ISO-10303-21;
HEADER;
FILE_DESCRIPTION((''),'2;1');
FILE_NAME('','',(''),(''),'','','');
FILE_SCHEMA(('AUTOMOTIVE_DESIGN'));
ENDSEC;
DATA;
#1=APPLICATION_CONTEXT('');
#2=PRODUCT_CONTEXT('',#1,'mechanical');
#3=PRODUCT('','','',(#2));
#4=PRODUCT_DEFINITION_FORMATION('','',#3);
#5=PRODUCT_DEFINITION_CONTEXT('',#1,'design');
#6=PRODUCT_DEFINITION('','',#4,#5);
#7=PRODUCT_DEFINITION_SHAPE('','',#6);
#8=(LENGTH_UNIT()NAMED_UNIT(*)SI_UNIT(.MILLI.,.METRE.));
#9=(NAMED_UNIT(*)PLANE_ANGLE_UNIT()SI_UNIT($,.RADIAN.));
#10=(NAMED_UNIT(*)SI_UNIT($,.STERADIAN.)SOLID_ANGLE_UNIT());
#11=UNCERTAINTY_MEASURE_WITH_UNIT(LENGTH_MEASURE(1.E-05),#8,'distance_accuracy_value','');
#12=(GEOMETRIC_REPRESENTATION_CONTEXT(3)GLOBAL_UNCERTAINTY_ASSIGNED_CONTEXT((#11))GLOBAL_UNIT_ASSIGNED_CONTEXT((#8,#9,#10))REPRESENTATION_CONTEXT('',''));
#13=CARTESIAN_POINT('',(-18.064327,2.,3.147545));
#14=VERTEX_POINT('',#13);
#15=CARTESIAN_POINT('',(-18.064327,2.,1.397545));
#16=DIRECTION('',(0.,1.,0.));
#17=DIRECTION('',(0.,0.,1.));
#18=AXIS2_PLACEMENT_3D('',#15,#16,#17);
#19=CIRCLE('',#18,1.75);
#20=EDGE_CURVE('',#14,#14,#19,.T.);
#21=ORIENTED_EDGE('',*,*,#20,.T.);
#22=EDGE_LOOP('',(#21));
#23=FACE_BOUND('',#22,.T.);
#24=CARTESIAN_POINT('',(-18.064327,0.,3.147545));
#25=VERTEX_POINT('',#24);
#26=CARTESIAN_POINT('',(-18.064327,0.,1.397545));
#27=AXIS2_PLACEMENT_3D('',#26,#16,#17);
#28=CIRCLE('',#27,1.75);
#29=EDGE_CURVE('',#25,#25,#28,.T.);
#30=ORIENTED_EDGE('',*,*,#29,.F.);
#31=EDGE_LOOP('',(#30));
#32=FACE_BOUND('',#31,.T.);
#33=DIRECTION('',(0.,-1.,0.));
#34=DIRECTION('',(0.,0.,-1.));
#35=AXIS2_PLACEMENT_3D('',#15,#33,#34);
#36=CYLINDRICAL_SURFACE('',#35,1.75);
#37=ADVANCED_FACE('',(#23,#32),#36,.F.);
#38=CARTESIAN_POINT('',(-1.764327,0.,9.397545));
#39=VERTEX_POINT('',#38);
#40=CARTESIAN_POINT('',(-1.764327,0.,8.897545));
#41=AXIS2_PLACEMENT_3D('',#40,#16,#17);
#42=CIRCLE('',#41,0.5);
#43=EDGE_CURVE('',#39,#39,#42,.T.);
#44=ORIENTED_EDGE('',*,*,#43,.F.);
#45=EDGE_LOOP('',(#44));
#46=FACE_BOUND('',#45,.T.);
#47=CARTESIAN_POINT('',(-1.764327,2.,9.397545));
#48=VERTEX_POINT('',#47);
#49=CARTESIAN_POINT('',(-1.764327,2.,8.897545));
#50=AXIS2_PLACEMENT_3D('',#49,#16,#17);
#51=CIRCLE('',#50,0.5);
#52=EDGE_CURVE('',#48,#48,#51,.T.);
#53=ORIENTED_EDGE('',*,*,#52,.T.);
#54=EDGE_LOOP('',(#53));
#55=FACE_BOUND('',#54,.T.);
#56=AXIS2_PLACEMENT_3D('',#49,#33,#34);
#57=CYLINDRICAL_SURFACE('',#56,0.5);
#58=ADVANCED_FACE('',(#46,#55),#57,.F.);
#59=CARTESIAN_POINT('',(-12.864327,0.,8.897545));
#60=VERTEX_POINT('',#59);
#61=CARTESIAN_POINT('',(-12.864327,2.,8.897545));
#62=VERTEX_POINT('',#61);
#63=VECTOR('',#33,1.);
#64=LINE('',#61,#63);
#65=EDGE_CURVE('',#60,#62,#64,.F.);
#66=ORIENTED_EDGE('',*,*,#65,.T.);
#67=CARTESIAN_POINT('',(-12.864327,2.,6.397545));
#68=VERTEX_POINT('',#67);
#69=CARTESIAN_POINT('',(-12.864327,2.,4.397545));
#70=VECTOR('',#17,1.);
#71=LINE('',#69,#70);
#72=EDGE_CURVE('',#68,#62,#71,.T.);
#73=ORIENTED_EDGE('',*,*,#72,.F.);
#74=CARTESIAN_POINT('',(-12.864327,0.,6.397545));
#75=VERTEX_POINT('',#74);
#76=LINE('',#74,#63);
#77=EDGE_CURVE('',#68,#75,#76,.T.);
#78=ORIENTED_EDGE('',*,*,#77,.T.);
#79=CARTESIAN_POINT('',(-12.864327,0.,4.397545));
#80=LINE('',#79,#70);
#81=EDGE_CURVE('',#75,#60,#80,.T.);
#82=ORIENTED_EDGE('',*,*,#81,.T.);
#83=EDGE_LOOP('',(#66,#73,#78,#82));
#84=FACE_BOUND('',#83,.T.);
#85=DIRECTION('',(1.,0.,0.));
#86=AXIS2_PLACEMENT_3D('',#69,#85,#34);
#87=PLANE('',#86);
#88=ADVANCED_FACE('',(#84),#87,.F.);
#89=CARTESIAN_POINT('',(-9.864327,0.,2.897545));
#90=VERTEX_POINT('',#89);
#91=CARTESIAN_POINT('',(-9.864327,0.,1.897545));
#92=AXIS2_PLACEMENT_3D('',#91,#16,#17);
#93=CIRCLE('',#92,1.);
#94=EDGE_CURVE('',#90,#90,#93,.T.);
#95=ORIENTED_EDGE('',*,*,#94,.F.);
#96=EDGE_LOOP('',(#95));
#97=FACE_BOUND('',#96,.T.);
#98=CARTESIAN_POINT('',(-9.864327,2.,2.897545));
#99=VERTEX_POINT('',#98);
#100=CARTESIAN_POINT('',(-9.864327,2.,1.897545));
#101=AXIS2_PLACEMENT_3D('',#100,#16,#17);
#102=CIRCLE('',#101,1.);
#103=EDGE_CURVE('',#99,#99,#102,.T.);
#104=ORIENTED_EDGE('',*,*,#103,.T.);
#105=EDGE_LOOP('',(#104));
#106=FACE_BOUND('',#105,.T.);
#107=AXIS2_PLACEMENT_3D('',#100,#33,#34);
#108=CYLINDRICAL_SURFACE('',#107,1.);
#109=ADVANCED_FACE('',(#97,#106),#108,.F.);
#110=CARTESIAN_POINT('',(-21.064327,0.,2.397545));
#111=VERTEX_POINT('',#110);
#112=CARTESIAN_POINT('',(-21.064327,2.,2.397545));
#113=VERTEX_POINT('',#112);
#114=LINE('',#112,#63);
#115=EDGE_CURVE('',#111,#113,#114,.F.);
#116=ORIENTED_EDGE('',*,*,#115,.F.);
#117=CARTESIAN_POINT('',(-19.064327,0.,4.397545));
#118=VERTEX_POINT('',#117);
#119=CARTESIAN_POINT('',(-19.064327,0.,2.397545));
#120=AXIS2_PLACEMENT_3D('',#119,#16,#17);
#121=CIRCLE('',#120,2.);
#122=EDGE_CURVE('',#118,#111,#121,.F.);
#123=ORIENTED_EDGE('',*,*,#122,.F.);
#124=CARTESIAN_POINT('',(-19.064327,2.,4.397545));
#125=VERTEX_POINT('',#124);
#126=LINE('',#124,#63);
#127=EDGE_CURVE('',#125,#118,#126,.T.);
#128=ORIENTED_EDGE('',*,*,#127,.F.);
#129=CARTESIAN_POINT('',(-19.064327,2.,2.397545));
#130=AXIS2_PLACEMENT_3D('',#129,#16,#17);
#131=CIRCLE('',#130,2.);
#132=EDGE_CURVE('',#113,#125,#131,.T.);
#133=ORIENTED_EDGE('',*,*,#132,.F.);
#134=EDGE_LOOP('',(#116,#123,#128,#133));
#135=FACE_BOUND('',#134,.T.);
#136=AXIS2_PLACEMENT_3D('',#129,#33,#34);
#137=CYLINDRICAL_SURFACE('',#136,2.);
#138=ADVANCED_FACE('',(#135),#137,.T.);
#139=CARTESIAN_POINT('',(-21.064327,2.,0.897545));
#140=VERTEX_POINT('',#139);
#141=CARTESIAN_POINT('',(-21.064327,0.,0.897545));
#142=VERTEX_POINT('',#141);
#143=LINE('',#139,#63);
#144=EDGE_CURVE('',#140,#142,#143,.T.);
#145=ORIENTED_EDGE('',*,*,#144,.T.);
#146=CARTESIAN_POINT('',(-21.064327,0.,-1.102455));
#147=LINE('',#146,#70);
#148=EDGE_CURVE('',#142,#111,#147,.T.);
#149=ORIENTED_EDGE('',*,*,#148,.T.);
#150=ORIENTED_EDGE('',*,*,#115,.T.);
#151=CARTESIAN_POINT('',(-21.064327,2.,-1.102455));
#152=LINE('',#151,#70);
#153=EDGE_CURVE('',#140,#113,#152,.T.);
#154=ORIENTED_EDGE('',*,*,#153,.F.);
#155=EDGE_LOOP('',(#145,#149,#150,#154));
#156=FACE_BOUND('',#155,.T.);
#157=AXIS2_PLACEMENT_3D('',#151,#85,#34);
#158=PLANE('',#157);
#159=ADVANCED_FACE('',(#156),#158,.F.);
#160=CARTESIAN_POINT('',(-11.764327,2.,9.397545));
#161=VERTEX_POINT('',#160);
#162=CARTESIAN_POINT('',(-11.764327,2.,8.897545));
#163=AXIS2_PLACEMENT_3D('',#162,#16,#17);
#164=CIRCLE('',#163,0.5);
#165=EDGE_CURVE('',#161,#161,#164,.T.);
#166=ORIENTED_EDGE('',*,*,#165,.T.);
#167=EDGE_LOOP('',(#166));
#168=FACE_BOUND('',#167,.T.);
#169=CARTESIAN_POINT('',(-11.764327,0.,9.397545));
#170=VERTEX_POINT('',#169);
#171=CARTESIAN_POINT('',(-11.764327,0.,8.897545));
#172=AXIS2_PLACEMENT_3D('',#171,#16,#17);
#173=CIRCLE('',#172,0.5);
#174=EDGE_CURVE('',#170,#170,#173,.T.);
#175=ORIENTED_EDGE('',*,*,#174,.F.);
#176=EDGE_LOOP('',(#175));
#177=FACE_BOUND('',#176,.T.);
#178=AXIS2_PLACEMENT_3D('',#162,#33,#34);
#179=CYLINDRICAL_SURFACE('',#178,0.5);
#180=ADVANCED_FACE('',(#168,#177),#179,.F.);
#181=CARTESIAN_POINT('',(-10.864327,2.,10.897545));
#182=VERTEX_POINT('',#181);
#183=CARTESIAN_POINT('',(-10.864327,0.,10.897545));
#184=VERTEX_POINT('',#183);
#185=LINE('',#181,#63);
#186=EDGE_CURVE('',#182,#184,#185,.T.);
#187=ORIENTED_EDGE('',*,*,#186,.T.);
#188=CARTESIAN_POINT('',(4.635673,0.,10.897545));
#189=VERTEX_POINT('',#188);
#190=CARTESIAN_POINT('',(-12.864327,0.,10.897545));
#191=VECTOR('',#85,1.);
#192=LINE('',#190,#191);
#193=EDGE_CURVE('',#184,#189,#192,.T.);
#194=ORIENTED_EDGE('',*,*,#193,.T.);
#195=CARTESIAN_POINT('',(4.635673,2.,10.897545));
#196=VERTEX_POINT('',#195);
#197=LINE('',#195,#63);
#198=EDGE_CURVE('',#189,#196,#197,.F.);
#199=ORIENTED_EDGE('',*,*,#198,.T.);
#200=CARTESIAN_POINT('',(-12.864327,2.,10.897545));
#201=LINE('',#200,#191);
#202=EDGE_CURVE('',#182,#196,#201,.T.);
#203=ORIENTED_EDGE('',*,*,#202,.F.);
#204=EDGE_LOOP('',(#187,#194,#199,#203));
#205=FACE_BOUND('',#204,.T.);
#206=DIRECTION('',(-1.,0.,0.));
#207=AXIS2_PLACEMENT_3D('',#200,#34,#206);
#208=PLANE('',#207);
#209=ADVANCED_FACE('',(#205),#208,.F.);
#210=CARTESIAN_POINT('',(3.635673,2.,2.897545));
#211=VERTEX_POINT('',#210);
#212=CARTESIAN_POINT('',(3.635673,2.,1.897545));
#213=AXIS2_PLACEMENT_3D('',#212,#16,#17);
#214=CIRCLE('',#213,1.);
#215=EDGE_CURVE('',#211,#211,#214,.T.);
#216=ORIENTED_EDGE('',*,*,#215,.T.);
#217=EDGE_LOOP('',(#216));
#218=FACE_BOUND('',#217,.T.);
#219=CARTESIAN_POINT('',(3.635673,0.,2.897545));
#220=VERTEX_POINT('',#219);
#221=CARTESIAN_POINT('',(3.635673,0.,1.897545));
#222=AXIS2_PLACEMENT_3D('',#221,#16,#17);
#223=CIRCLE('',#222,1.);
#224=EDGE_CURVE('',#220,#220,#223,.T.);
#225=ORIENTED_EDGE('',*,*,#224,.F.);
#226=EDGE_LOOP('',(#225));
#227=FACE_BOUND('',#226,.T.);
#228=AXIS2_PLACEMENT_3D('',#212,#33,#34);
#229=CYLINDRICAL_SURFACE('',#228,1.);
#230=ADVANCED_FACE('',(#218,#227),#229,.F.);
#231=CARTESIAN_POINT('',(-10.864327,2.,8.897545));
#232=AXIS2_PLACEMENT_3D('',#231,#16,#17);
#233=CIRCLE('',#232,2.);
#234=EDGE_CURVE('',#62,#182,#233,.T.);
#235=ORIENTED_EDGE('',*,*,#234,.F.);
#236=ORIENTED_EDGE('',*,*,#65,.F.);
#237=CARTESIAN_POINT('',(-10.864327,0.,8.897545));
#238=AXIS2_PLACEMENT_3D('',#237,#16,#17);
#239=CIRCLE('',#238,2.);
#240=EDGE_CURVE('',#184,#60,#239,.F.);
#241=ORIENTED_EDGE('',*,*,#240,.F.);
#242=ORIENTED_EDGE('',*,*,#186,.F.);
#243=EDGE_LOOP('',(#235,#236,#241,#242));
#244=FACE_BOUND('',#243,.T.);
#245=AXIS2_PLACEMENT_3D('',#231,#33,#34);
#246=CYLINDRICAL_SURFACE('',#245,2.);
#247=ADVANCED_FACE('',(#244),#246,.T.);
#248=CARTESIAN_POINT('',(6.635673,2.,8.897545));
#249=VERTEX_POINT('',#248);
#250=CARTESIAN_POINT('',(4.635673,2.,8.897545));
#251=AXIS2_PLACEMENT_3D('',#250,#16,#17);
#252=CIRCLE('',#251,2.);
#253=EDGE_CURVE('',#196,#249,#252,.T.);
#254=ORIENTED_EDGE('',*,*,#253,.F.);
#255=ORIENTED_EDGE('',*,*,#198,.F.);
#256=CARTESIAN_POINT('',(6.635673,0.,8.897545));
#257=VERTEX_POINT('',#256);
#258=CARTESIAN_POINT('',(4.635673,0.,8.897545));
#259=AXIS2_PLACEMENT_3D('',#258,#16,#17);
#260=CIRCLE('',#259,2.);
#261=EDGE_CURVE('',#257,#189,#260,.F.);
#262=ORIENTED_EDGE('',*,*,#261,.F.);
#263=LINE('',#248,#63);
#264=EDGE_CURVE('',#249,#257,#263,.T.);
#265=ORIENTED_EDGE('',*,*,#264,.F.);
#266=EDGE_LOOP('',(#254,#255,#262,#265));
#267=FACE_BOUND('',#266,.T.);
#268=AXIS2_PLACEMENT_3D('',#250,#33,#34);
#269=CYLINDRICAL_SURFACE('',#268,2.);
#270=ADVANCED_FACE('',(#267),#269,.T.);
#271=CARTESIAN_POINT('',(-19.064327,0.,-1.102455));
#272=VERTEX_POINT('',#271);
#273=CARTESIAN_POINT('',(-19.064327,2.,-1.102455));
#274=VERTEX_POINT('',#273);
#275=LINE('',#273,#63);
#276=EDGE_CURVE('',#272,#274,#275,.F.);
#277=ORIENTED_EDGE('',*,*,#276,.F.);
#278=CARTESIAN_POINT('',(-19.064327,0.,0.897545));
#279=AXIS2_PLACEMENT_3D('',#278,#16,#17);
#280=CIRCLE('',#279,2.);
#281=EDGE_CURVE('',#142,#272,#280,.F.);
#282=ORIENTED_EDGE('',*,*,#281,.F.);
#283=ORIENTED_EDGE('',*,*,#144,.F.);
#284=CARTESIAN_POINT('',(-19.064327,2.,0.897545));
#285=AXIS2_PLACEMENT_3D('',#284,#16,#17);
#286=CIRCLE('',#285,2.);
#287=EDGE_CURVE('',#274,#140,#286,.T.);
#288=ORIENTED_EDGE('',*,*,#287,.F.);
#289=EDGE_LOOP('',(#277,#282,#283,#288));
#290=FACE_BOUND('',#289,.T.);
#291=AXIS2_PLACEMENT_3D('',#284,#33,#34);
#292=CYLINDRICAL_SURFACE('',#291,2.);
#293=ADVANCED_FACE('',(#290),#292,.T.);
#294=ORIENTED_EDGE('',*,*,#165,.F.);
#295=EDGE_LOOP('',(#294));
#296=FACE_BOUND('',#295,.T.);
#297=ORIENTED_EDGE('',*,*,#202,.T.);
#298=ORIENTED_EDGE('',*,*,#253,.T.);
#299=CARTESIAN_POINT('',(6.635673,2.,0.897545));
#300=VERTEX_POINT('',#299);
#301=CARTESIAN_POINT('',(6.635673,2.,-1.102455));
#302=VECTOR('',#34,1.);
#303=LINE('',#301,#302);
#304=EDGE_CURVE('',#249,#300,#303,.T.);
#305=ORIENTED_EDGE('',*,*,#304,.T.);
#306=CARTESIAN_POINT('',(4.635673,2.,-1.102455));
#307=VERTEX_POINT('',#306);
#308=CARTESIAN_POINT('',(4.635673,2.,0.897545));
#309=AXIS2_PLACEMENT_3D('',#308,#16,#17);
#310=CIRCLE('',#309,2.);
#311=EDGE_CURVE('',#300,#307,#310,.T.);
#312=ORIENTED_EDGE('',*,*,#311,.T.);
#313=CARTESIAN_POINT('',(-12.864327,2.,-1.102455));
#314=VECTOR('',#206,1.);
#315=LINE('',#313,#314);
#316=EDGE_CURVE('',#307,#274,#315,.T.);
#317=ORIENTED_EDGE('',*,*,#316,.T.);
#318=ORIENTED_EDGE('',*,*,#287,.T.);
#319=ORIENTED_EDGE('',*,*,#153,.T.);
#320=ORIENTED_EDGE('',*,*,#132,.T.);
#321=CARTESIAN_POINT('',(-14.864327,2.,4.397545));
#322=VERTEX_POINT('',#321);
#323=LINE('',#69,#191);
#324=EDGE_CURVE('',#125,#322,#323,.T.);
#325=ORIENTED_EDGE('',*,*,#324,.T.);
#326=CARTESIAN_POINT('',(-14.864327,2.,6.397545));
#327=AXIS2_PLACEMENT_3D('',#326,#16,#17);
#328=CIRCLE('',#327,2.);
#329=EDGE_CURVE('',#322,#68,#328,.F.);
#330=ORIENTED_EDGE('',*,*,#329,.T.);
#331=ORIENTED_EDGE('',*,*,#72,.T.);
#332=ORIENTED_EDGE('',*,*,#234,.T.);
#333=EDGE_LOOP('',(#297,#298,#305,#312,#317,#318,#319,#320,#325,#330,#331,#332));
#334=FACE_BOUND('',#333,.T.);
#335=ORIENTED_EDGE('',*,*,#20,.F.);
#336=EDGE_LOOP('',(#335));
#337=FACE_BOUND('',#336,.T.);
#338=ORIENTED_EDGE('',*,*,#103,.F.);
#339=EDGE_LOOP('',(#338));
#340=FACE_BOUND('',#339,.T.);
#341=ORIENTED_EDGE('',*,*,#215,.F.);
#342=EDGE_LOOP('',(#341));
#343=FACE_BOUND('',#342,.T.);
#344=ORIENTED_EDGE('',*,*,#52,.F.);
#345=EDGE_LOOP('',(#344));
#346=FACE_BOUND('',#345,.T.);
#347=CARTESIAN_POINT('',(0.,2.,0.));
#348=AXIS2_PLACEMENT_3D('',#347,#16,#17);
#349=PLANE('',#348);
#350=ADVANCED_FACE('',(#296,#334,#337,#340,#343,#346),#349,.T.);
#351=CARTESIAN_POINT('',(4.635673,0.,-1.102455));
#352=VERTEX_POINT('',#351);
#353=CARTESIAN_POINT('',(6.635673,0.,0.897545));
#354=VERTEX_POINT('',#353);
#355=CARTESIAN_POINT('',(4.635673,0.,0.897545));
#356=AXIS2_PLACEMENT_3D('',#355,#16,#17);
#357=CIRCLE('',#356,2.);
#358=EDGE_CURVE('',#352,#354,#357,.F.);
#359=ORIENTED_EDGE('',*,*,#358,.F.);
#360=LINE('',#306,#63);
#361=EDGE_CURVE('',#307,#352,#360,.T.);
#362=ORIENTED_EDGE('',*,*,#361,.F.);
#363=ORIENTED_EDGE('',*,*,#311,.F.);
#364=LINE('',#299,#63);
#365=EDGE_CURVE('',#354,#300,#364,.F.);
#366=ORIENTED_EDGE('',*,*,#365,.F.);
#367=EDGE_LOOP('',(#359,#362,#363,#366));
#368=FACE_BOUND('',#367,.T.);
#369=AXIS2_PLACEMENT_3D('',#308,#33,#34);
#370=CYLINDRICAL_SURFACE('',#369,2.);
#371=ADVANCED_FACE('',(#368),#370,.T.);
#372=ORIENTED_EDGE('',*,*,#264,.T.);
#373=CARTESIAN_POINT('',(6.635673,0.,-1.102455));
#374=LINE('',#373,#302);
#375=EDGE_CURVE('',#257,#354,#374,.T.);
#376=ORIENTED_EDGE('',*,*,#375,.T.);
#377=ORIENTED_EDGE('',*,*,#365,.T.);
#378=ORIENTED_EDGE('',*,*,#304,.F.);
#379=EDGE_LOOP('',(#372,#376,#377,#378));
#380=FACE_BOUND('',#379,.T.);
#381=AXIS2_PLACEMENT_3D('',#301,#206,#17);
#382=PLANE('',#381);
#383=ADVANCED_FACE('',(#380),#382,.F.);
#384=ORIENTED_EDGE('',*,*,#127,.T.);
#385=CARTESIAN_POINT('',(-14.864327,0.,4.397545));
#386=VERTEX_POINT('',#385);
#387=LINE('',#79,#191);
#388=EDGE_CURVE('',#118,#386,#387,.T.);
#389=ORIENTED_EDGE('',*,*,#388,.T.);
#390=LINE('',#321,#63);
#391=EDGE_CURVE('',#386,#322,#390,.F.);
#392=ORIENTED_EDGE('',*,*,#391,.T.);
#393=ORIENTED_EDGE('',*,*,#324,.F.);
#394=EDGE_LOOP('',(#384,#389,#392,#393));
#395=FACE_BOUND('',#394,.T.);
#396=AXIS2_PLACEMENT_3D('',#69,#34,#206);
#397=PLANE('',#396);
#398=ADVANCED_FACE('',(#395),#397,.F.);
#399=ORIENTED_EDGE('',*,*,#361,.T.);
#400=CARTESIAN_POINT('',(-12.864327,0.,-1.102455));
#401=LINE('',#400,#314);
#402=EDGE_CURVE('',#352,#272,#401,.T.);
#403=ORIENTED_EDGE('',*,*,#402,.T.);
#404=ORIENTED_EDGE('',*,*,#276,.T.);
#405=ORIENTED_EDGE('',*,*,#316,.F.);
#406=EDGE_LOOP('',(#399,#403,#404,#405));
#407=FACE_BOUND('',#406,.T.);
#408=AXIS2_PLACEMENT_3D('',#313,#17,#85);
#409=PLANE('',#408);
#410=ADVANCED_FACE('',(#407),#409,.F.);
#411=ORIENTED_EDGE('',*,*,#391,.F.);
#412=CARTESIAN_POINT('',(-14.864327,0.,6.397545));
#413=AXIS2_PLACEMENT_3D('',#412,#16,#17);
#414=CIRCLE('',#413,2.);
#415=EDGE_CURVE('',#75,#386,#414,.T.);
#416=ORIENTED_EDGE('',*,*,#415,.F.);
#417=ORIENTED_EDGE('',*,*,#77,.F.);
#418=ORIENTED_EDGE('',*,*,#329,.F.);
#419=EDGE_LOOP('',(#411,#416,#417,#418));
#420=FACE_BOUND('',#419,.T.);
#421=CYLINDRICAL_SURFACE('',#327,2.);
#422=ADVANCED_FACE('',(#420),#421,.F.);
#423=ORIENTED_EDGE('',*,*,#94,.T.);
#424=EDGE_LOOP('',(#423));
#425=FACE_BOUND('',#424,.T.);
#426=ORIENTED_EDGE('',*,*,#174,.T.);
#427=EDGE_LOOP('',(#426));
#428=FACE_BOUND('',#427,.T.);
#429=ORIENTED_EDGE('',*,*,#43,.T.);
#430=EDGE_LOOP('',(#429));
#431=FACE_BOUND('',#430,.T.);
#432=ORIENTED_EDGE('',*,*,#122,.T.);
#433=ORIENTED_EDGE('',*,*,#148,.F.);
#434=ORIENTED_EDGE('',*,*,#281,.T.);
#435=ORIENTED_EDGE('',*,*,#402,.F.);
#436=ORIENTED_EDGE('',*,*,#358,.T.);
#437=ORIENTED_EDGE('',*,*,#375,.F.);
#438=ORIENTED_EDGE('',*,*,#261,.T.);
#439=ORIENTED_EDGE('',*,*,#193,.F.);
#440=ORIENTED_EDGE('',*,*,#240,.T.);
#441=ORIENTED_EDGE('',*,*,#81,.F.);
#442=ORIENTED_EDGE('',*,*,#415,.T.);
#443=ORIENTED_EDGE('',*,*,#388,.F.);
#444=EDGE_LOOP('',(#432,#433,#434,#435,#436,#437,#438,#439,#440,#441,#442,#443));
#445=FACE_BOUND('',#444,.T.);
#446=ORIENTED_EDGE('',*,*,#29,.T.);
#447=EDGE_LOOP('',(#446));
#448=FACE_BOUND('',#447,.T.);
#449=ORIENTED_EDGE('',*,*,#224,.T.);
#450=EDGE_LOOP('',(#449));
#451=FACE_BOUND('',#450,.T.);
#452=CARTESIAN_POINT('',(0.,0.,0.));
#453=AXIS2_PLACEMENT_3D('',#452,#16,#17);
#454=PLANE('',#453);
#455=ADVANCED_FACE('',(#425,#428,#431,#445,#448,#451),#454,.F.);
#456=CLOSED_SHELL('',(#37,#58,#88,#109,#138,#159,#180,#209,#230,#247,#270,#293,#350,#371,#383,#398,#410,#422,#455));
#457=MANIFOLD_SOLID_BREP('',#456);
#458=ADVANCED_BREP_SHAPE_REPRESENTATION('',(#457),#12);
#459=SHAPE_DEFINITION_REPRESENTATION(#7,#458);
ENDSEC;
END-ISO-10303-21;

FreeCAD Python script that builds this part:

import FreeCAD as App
import Part
import Sketcher
from FreeCAD import Vector


def edges_at(feature, points):
    """Names of the edges that pass closest to the given points."""
    edges = feature.Shape.Edges
    near = lambda p: min(range(len(edges)), key=lambda i: edges[i].distToShape(Part.Vertex(*p))[0])
    return sorted({f"Edge{near(p) + 1}" for p in points})

doc = App.newDocument("Part")
body = doc.addObject("PartDesign::Body", "Body")

# Sketch on XZ plane
sketch1 = body.newObject("Sketcher::SketchObject", "Sketch")
sketch1.AttachmentSupport = (doc.getObject("XZ_Plane"), [""])
sketch1.MapMode = "FlatFace"
sketch1.addGeometry([
    Part.LineSegment(Vector(6.6, -1.1, 0), Vector(-21.1, -1.1, 0)),  # 0
    Part.LineSegment(Vector(-21.1, -1.1, 0), Vector(-21.1, 4.4, 0)),  # 1
    Part.LineSegment(Vector(-21.1, 4.4, 0), Vector(-12.9, 4.4, 0)),  # 2
    Part.LineSegment(Vector(-12.9, 4.4, 0), Vector(-12.9, 10.9, 0)),  # 3
    Part.LineSegment(Vector(-12.9, 10.9, 0), Vector(6.6, 10.9, 0)),  # 4
    Part.LineSegment(Vector(6.6, 10.9, 0), Vector(6.6, -1.1, 0)),  # 5
    Part.Circle(Vector(-1.8, 8.9, 0), Vector(0, 0, 1), 0.5),  # 6
    Part.Circle(Vector(-11.8, 8.9, 0), Vector(0, 0, 1), 0.5),  # 7
    Part.Circle(Vector(3.6, 1.9, 0), Vector(0, 0, 1), 1),  # 8
    Part.Circle(Vector(-9.9, 1.9, 0), Vector(0, 0, 1), 1),  # 9
    Part.Circle(Vector(-18.1, 1.4, 0), Vector(0, 0, 1), 1.8),  # 10
], False)
sketch1.addConstraint([
    Sketcher.Constraint("Coincident", 0, 2, 1, 1),
    Sketcher.Constraint("Coincident", 1, 2, 2, 1),
    Sketcher.Constraint("Coincident", 2, 2, 3, 1),
    Sketcher.Constraint("Coincident", 3, 2, 4, 1),
    Sketcher.Constraint("Coincident", 4, 2, 5, 1),
    Sketcher.Constraint("Coincident", 5, 2, 0, 1),
    Sketcher.Constraint("Horizontal", 0),
    Sketcher.Constraint("Vertical", 1),
    Sketcher.Constraint("Horizontal", 2),
    Sketcher.Constraint("Vertical", 3),
    Sketcher.Constraint("Horizontal", 4),
    Sketcher.Constraint("Vertical", 5),
    Sketcher.Constraint("Equal", 6, 7),
    Sketcher.Constraint("Equal", 8, 9),
    Sketcher.Constraint("Horizontal", 6, 3, 7, 3),
    Sketcher.Constraint("Horizontal", 8, 3, 9, 3),
    Sketcher.Constraint("Diameter", 6, 1.0),
    Sketcher.Constraint("Diameter", 8, 2.0),
    Sketcher.Constraint("Diameter", 10, 3.5),
    Sketcher.Constraint("DistanceY", 5, 2, 5, 1, 12.0),
    Sketcher.Constraint("DistanceX", 0, 2, 0, 1, 27.7),
    Sketcher.Constraint("DistanceX", 2, 1, 2, 2, 8.2),
    Sketcher.Constraint("DistanceY", 1, 1, 1, 2, 5.5),
    Sketcher.Constraint("DistanceX", 7, 3, 6, 3, 10.0),
    Sketcher.Constraint("DistanceY", 8, 3, 6, 3, 7.0),
    Sketcher.Constraint("DistanceX", 0, 2, 10, 3, 3.0),
    Sketcher.Constraint("DistanceY", 0, 2, 9, 3, 3.0),
    Sketcher.Constraint("DistanceY", 10, 3, 1, 2, 3.0),
    Sketcher.Constraint("DistanceX", 2, 2, 9, 3, 3.0),
    Sketcher.Constraint("DistanceX", 8, 3, 4, 2, 3.0),
    Sketcher.Constraint("DistanceX", 6, 3, 8, 3, 5.4),
    Sketcher.Constraint("DistanceX", 6, 3, -1, 1, 1.764327),
    Sketcher.Constraint("DistanceY", -1, 1, 6, 3, 8.897545),
])
pad1 = body.newObject("PartDesign::Pad", "Pad")
pad1.Profile = sketch1
pad1.Length = 2
pad1.Reversed = True
doc.recompute()

fillet = body.newObject("PartDesign::Fillet", "Fillet")
fillet.Base = (pad1, edges_at(pad1, [
    (6.636, 1, -1.102),
    (6.636, 1, 10.898),
    (-12.864, 1, 10.898),
    (-12.864, 1, 4.398),
    (-21.064, 1, 4.398),
    (-21.064, 1, -1.102),
]))
fillet.Radius = 2

doc.recompute()
